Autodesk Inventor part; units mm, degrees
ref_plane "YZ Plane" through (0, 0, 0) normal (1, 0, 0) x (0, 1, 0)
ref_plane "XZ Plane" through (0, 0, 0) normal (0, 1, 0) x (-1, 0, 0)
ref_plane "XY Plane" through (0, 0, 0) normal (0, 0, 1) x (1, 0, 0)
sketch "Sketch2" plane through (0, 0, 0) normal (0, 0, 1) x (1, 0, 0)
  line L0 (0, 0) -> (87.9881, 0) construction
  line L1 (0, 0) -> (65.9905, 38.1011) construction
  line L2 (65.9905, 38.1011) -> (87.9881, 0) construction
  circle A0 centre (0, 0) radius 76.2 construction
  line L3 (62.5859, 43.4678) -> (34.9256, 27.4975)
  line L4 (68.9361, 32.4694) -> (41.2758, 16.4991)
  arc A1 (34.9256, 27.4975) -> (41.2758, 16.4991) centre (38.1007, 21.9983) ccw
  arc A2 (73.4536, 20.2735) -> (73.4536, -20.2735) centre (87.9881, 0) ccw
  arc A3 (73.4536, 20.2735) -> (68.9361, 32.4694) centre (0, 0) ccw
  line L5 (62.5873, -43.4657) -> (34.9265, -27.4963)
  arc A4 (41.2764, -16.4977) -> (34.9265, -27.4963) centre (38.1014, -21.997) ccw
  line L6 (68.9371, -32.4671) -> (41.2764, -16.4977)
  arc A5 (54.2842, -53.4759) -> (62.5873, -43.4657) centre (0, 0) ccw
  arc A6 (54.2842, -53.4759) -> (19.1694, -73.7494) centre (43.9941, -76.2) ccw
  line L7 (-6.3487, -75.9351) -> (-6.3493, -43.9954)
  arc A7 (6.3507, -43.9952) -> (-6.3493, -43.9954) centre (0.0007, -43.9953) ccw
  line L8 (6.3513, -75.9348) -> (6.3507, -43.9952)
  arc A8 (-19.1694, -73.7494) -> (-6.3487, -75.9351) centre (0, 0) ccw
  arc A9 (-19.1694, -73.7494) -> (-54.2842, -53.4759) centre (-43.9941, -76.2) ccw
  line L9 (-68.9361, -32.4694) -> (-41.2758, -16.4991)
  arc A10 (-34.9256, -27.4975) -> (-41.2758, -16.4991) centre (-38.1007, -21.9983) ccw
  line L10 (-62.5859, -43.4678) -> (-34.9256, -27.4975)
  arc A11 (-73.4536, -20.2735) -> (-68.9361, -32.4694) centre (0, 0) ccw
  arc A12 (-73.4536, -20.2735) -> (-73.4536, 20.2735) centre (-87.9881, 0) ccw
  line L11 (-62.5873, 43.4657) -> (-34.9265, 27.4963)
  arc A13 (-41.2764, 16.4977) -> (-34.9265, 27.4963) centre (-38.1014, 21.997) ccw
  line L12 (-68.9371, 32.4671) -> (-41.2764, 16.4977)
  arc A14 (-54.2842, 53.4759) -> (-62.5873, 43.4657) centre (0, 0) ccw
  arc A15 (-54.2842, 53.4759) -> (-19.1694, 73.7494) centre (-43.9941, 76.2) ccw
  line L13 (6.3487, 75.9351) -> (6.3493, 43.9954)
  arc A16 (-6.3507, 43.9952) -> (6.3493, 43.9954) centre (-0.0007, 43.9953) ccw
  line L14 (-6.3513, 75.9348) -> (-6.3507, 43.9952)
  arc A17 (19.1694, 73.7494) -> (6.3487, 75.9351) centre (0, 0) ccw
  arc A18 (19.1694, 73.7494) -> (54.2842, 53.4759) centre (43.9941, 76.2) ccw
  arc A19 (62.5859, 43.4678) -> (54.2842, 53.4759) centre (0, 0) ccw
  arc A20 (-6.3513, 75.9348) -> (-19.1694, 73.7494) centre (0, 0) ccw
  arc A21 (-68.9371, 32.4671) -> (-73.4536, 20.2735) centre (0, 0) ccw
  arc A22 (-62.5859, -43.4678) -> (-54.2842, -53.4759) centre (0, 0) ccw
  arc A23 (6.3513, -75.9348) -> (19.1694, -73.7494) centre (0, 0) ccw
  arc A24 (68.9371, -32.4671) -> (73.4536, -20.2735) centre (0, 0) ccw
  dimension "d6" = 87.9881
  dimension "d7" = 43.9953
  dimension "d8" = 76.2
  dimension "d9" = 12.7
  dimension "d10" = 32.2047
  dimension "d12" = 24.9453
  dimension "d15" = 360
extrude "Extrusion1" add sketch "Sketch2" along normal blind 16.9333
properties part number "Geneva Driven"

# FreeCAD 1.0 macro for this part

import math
import FreeCAD as App
import Part
import Sketcher
from FreeCAD import Vector
Q = App.Units.Quantity

doc = App.newDocument("Part")
body = doc.addObject("PartDesign::Body", "Body")

sketch1 = body.newObject("Sketcher::SketchObject", "Sketch")
sketch1.AttachmentSupport = (doc.getObject("XY_Plane"), [""])
sketch1.MapMode = "FlatFace"
sketch1.addGeometry(Part.LineSegment(Vector(34.9256, 27.4975, 0), Vector(62.5859, 43.4678, 0)), False)
sketch1.addGeometry(Part.ArcOfCircle(Part.Circle(Vector(-0.001244, -0.000945, 0), Vector(0, 0, 1), 76.20159), math.radians(34.781198), math.radians(44.570087)), False)
sketch1.addGeometry(Part.ArcOfCircle(Part.Circle(Vector(43.9941, 76.2, 0), Vector(0, 0, 1), 24.945364), math.radians(-174.362244), math.radians(-65.637669)), False)
sketch1.addGeometry(Part.ArcOfCircle(Part.Circle(Vector(-0.001041, -0.004847, 0), Vector(0, 0, 1), 76.204952), math.radians(75.429905), math.radians(85.220315)), False)
sketch1.addGeometry(Part.LineSegment(Vector(6.3487, 75.9351, 0), Vector(6.3493, 43.9954, 0)), False)
sketch1.addGeometry(Part.ArcOfCircle(Part.Circle(Vector(-0.0007, 43.9953, 0), Vector(0, 0, 1), 6.35), math.radians(-179.999098), math.radians(0.000902)), False)
sketch1.addGeometry(Part.LineSegment(Vector(-6.3507, 43.9952, 0), Vector(-6.3513, 75.9348, 0)), False)
sketch1.addGeometry(Part.ArcOfCircle(Part.Circle(Vector(0.000797, -0.006284, 0), Vector(0, 0, 1), 76.206282), math.radians(94.781379), math.radians(104.569646)), False)
sketch1.addGeometry(Part.ArcOfCircle(Part.Circle(Vector(-43.9941, 76.2, 0), Vector(0, 0, 1), 24.945358), math.radians(-114.362331), math.radians(-5.637756)), False)
sketch1.addGeometry(Part.ArcOfCircle(Part.Circle(Vector(-0.006044, 0.005465, 0), Vector(0, 0, 1), 76.1919), math.radians(135.429501), math.radians(145.221533)), False)
sketch1.addGeometry(Part.LineSegment(Vector(-62.5873, 43.4657, 0), Vector(-34.9265, 27.4963, 0)), False)
sketch1.addGeometry(Part.ArcOfCircle(Part.Circle(Vector(-38.1014, 21.997, 0), Vector(0, 0, 1), 6.350034), math.radians(-119.999825), math.radians(60.000956)), False)
sketch1.addGeometry(Part.LineSegment(Vector(-41.2764, 16.4977, 0), Vector(-68.9371, 32.4671, 0)), False)
sketch1.addGeometry(Part.ArcOfCircle(Part.Circle(Vector(0.008152, -0.003422, 0), Vector(0, 0, 1), 76.208809), math.radians(154.781395), math.radians(164.569423)), False)
sketch1.addGeometry(Part.ArcOfCircle(Part.Circle(Vector(-87.9881, 0, 0), Vector(0, 0, 1), 24.94527), math.radians(-54.362462), math.radians(54.362462)), False)
sketch1.addGeometry(Part.ArcOfCircle(Part.Circle(Vector(0.001426, 0.00046, 0), Vector(0, 0, 1), 76.201537), math.radians(-164.570225), math.radians(-154.77937)), False)
sketch1.addGeometry(Part.LineSegment(Vector(-68.9361, -32.4694, 0), Vector(-41.2758, -16.4991, 0)), False)
sketch1.addGeometry(Part.ArcOfCircle(Part.Circle(Vector(-38.1007, -21.9983, 0), Vector(0, 0, 1), 6.349997), math.radians(-59.998942), math.radians(120.001058)), False)
sketch1.addGeometry(Part.LineSegment(Vector(-34.9256, -27.4975, 0), Vector(-62.5859, -43.4678, 0)), False)
sketch1.addGeometry(Part.ArcOfCircle(Part.Circle(Vector(0.001244, 0.000945, 0), Vector(0, 0, 1), 76.20159), math.radians(-145.218802), math.radians(-135.429913)), False)
sketch1.addGeometry(Part.ArcOfCircle(Part.Circle(Vector(-43.9941, -76.2, 0), Vector(0, 0, 1), 24.945364), math.radians(5.637756), math.radians(114.362331)), False)
sketch1.addGeometry(Part.ArcOfCircle(Part.Circle(Vector(0.001041, 0.004847, 0), Vector(0, 0, 1), 76.204952), math.radians(-104.570095), math.radians(-94.779685)), False)
sketch1.addGeometry(Part.LineSegment(Vector(-6.3487, -75.9351, 0), Vector(-6.3493, -43.9954, 0)), False)
sketch1.addGeometry(Part.ArcOfCircle(Part.Circle(Vector(0.0007, -43.9953, 0), Vector(0, 0, 1), 6.35), math.radians(0.000902), math.radians(180.000902)), False)
sketch1.addGeometry(Part.LineSegment(Vector(6.3507, -43.9952, 0), Vector(6.3513, -75.9348, 0)), False)
sketch1.addGeometry(Part.ArcOfCircle(Part.Circle(Vector(-0.000797, 0.006284, 0), Vector(0, 0, 1), 76.206282), math.radians(-85.218621), math.radians(-75.430354)), False)
sketch1.addGeometry(Part.ArcOfCircle(Part.Circle(Vector(43.9941, -76.2, 0), Vector(0, 0, 1), 24.945358), math.radians(65.637669), math.radians(174.362244)), False)
sketch1.addGeometry(Part.ArcOfCircle(Part.Circle(Vector(0.006044, -0.005465, 0), Vector(0, 0, 1), 76.1919), math.radians(-44.570499), math.radians(-34.778467)), False)
sketch1.addGeometry(Part.LineSegment(Vector(62.5873, -43.4657, 0), Vector(34.9265, -27.4963, 0)), False)
sketch1.addGeometry(Part.ArcOfCircle(Part.Circle(Vector(38.1014, -21.997, 0), Vector(0, 0, 1), 6.350034), math.radians(60.000175), math.radians(240.000956)), False)
sketch1.addGeometry(Part.LineSegment(Vector(41.2764, -16.4977, 0), Vector(68.9371, -32.4671, 0)), False)
sketch1.addGeometry(Part.ArcOfCircle(Part.Circle(Vector(-0.008152, 0.003422, 0), Vector(0, 0, 1), 76.208809), math.radians(-25.218605), math.radians(-15.430577)), False)
sketch1.addGeometry(Part.ArcOfCircle(Part.Circle(Vector(87.9881, 0, 0), Vector(0, 0, 1), 24.94527), math.radians(125.637538), math.radians(234.362462)), False)
sketch1.addGeometry(Part.ArcOfCircle(Part.Circle(Vector(-0.001426, -0.00046, 0), Vector(0, 0, 1), 76.201537), math.radians(15.429775), math.radians(25.22063)), False)
sketch1.addGeometry(Part.LineSegment(Vector(68.9361, 32.4694, 0), Vector(41.2758, 16.4991, 0)), False)
sketch1.addGeometry(Part.ArcOfCircle(Part.Circle(Vector(38.1007, 21.9983, 0), Vector(0, 0, 1), 6.349997), math.radians(120.001058), math.radians(300.001058)), False)
sketch1.addConstraint(Sketcher.Constraint("Coincident", 0, 2, 1, 1))
sketch1.addConstraint(Sketcher.Constraint("Coincident", 1, 2, 2, 2))
sketch1.addConstraint(Sketcher.Constraint("Coincident", 2, 1, 3, 1))
sketch1.addConstraint(Sketcher.Constraint("Coincident", 3, 2, 4, 1))
sketch1.addConstraint(Sketcher.Constraint("Coincident", 4, 2, 5, 2))
sketch1.addConstraint(Sketcher.Constraint("Coincident", 5, 1, 6, 1))
sketch1.addConstraint(Sketcher.Constraint("Coincident", 6, 2, 7, 1))
sketch1.addConstraint(Sketcher.Constraint("Coincident", 7, 2, 8, 2))
sketch1.addConstraint(Sketcher.Constraint("Coincident", 8, 1, 9, 1))
sketch1.addConstraint(Sketcher.Constraint("Coincident", 9, 2, 10, 1))
sketch1.addConstraint(Sketcher.Constraint("Coincident", 10, 2, 11, 2))
sketch1.addConstraint(Sketcher.Constraint("Coincident", 11, 1, 12, 1))
sketch1.addConstraint(Sketcher.Constraint("Coincident", 12, 2, 13, 1))
sketch1.addConstraint(Sketcher.Constraint("Coincident", 13, 2, 14, 2))
sketch1.addConstraint(Sketcher.Constraint("Coincident", 14, 1, 15, 1))
sketch1.addConstraint(Sketcher.Constraint("Coincident", 15, 2, 16, 1))
sketch1.addConstraint(Sketcher.Constraint("Coincident", 16, 2, 17, 2))
sketch1.addConstraint(Sketcher.Constraint("Coincident", 17, 1, 18, 1))
sketch1.addConstraint(Sketcher.Constraint("Coincident", 18, 2, 19, 1))
sketch1.addConstraint(Sketcher.Constraint("Coincident", 19, 2, 20, 2))
sketch1.addConstraint(Sketcher.Constraint("Coincident", 20, 1, 21, 1))
sketch1.addConstraint(Sketcher.Constraint("Coincident", 21, 2, 22, 1))
sketch1.addConstraint(Sketcher.Constraint("Coincident", 22, 2, 23, 2))
sketch1.addConstraint(Sketcher.Constraint("Coincident", 23, 1, 24, 1))
sketch1.addConstraint(Sketcher.Constraint("Coincident", 24, 2, 25, 1))
sketch1.addConstraint(Sketcher.Constraint("Coincident", 25, 2, 26, 2))
sketch1.addConstraint(Sketcher.Constraint("Coincident", 26, 1, 27, 1))
sketch1.addConstraint(Sketcher.Constraint("Coincident", 27, 2, 28, 1))
sketch1.addConstraint(Sketcher.Constraint("Coincident", 28, 2, 29, 2))
sketch1.addConstraint(Sketcher.Constraint("Coincident", 29, 1, 30, 1))
sketch1.addConstraint(Sketcher.Constraint("Coincident", 30, 2, 31, 1))
sketch1.addConstraint(Sketcher.Constraint("Coincident", 31, 2, 32, 2))
sketch1.addConstraint(Sketcher.Constraint("Coincident", 32, 1, 33, 1))
sketch1.addConstraint(Sketcher.Constraint("Coincident", 33, 2, 34, 1))
sketch1.addConstraint(Sketcher.Constraint("Coincident", 34, 2, 35, 2))
sketch1.addConstraint(Sketcher.Constraint("Coincident", 35, 1, 0, 1))
sketch1.addConstraint(Sketcher.Constraint("PointOnObject", 14, 3, -1))
sketch1.addConstraint(Sketcher.Constraint("PointOnObject", 32, 3, -1))
sketch1.addConstraint(Sketcher.Constraint("Radius", 5, Q("0.25 in")))
sketch1.addConstraint(Sketcher.Constraint("Radius", 11, Q("0.25 in")))
sketch1.addConstraint(Sketcher.Constraint("Radius", 17, Q("0.25 in")))
sketch1.addConstraint(Sketcher.Constraint("Radius", 23, Q("0.25 in")))
sketch1.addConstraint(Sketcher.Constraint("Radius", 29, Q("0.25 in")))
sketch1.addConstraint(Sketcher.Constraint("Radius", 35, Q("0.25 in")))
sketch1.addConstraint(Sketcher.Constraint("DistanceY", -1, 1, 2, 3, Q("3 in")))
sketch1.addConstraint(Sketcher.Constraint("DistanceY", -1, 1, 8, 3, Q("3 in")))
sketch1.addConstraint(Sketcher.Constraint("DistanceY", 20, 3, -1, 1, Q("3 in")))
sketch1.addConstraint(Sketcher.Constraint("DistanceY", 26, 3, -1, 1, Q("3 in")))
sketch1.addConstraint(Sketcher.Constraint("Radius", 2, Q("0.9821 in")))
sketch1.addConstraint(Sketcher.Constraint("Radius", 8, Q("0.9821 in")))
sketch1.addConstraint(Sketcher.Constraint("Radius", 14, Q("0.9821 in")))
sketch1.addConstraint(Sketcher.Constraint("Radius", 20, Q("0.9821 in")))
sketch1.addConstraint(Sketcher.Constraint("Radius", 26, Q("0.9821 in")))
sketch1.addConstraint(Sketcher.Constraint("Radius", 32, Q("0.9821 in")))
sketch1.addConstraint(Sketcher.Constraint("DistanceX", 6, 2, 3, 2, Q("0.5 in")))
sketch1.addConstraint(Sketcher.Constraint("DistanceX", 21, 2, 24, 2, Q("0.5 in")))
sketch1.addConstraint(Sketcher.Constraint("DistanceX", 1, 3, 3, 3, Q("0 in")))
sketch1.addConstraint(Sketcher.Constraint("DistanceX", 19, 3, 15, 3, Q("0 in")))
sketch1.addConstraint(Sketcher.Constraint("DistanceX", 21, 3, 19, 3, Q("0 in")))
sketch1.addConstraint(Sketcher.Constraint("DistanceX", 33, 3, 1, 3, Q("0 in")))
sketch1.addConstraint(Sketcher.Constraint("DistanceY", 5, 1, 5, 3, Q("0 in")))
sketch1.addConstraint(Sketcher.Constraint("DistanceY", 5, 1, 4, 2, Q("0 in")))
sketch1.addConstraint(Sketcher.Constraint("DistanceY", 6, 2, 3, 2, Q("0 in")))
sketch1.addConstraint(Sketcher.Constraint("DistanceY", 23, 3, 23, 1, Q("0 in")))
sketch1.addConstraint(Sketcher.Constraint("DistanceY", 22, 2, 23, 1, Q("0 in")))
sketch1.addConstraint(Sketcher.Constraint("DistanceY", 21, 2, 24, 2, Q("0 in")))
sketch1.addConstraint(Sketcher.Constraint("DistanceY", -1, 1, 5, 3, Q("1.7321 in")))
sketch1.addConstraint(Sketcher.Constraint("DistanceX", 14, 3, -1, 1, Q("3.4641 in")))
sketch1.addConstraint(Sketcher.Constraint("DistanceY", 23, 3, -1, 1, Q("1.7321 in")))
sketch1.addConstraint(Sketcher.Constraint("DistanceX", -1, 1, 32, 3, Q("3.4641 in")))
sketch1.addConstraint(Sketcher.Constraint("Radius", 3, Q("3.0002 in")))
sketch1.addConstraint(Sketcher.Constraint("Radius", 21, Q("3.0002 in")))
sketch1.addConstraint(Sketcher.Constraint("DistanceX", 1, 3, 2, 3, Q("1.7321 in")))
sketch1.addConstraint(Sketcher.Constraint("DistanceX", 8, 3, 2, 3, Q("3.4641 in")))
sketch1.addConstraint(Sketcher.Constraint("DistanceX", 11, 3, 1, 3, Q("1.5 in")))
sketch1.addConstraint(Sketcher.Constraint("DistanceY", 17, 3, 11, 3, Q("1.7321 in")))
sketch1.addConstraint(Sketcher.Constraint("DistanceX", 3, 3, 26, 3, Q("1.7321 in")))
sketch1.addConstraint(Sketcher.Constraint("DistanceX", 15, 3, 29, 3, Q("1.5 in")))
sketch1.addConstraint(Sketcher.Constraint("Radius", 1, Q("76.2016 mm")))
sketch1.addConstraint(Sketcher.Constraint("Radius", 7, Q("76.2063 mm")))
sketch1.addConstraint(Sketcher.Constraint("Radius", 9, Q("76.192 mm")))
sketch1.addConstraint(Sketcher.Constraint("Radius", 13, Q("76.2088 mm")))
sketch1.addConstraint(Sketcher.Constraint("Radius", 15, Q("76.2015 mm")))
sketch1.addConstraint(Sketcher.Constraint("Radius", 19, Q("76.2016 mm")))
sketch1.addConstraint(Sketcher.Constraint("Radius", 25, Q("76.2063 mm")))
sketch1.addConstraint(Sketcher.Constraint("Radius", 27, Q("76.192 mm")))
sketch1.addConstraint(Sketcher.Constraint("Radius", 31, Q("76.2088 mm")))
sketch1.addConstraint(Sketcher.Constraint("Radius", 33, Q("76.2015 mm")))
sketch1.addConstraint(Sketcher.Constraint("DistanceX", 5, 3, 2, 3, Q("43.9948 mm")))
sketch1.addConstraint(Sketcher.Constraint("DistanceX", 8, 3, 7, 3, Q("43.995 mm")))
sketch1.addConstraint(Sketcher.Constraint("DistanceX", 20, 3, 7, 3, Q("43.995 mm")))
sketch1.addConstraint(Sketcher.Constraint("DistanceY", 26, 3, 15, 3, Q("76.2005 mm")))
sketch1.addConstraint(Sketcher.Constraint("DistanceX", 25, 3, 4, 2, Q("0.25 in")))
sketch1.addConstraint(Sketcher.Constraint("DistanceX", 5, 1, 3, 2, Q("12.6994 mm")))
sketch1.addConstraint(Sketcher.Constraint("DistanceX", 11, 1, 10, 2, Q("0.25 in")))
sketch1.addConstraint(Sketcher.Constraint("DistanceX", 12, 2, 9, 2, Q("0.25 in")))
sketch1.addConstraint(Sketcher.Constraint("DistanceX", 16, 2, 17, 1, Q("0.25 in")))
sketch1.addConstraint(Sketcher.Constraint("DistanceX", 15, 2, 18, 2, Q("0.25 in")))
sketch1.addConstraint(Sketcher.Constraint("DistanceX", 21, 2, 23, 1, Q("12.6994 mm")))
sketch1.addConstraint(Sketcher.Constraint("DistanceX", 28, 2, 29, 1, Q("0.25 in")))
sketch1.addConstraint(Sketcher.Constraint("DistanceX", 27, 2, 30, 2, Q("0.25 in")))
sketch1.addConstraint(Sketcher.Constraint("DistanceX", 0, 2, 33, 2, Q("0.25 in")))
sketch1.addConstraint(Sketcher.Constraint("DistanceX", 35, 1, 34, 2, Q("0.25 in")))
sketch1.addConstraint(Sketcher.Constraint("DistanceX", -1, 1, 0, 2, Q("2.464 in")))
sketch1.addConstraint(Sketcher.Constraint("DistanceX", 18, 2, -1, 1, Q("2.464 in")))
sketch1.addConstraint(Sketcher.Constraint("DistanceX", 15, 3, 26, 3, Q("1.732 in")))
sketch1.addConstraint(Sketcher.Constraint("DistanceX", 9, 2, 11, 3, Q("0.964 in")))
sketch1.addConstraint(Sketcher.Constraint("DistanceX", 11, 3, 10, 2, Q("0.125 in")))
sketch1.addConstraint(Sketcher.Constraint("DistanceX", 15, 2, 17, 3, Q("1.214 in")))
sketch1.addConstraint(Sketcher.Constraint("DistanceX", 16, 2, 17, 3, Q("0.125 in")))
sketch1.addConstraint(Sketcher.Constraint("DistanceY", 18, 2, 15, 2, Q("0.433 in")))
sketch1.addConstraint(Sketcher.Constraint("DistanceX", 21, 2, 26, 3, Q("1.982 in")))
sketch1.addConstraint(Sketcher.Constraint("DistanceX", 29, 3, 27, 2, Q("0.964 in")))
sketch1.addConstraint(Sketcher.Constraint("DistanceX", 28, 2, 29, 3, Q("0.125 in")))
sketch1.addConstraint(Sketcher.Constraint("DistanceY", 33, 2, 0, 2, Q("0.433 in")))
sketch1.addConstraint(Sketcher.Constraint("DistanceX", 35, 3, 33, 2, Q("1.214 in")))
sketch1.addConstraint(Sketcher.Constraint("DistanceX", 35, 3, 34, 2, Q("0.125 in")))
sketch1.addConstraint(Sketcher.Constraint("DistanceY", 3, 3, -1, 1, Q("0.0002 in")))
sketch1.addConstraint(Sketcher.Constraint("DistanceY", -1, 1, 21, 3, Q("0.0002 in")))
sketch1.addConstraint(Sketcher.Constraint("DistanceX", -1, 1, 2, 1, Q("0.7547 in")))
sketch1.addConstraint(Sketcher.Constraint("DistanceY", 7, 3, 1, 3, Q("0.0002 in")))
sketch1.addConstraint(Sketcher.Constraint("DistanceX", 9, 3, 1, 3, Q("0.0002 in")))
sketch1.addConstraint(Sketcher.Constraint("DistanceY", 3, 3, 9, 3, Q("0.0004 in")))
sketch1.addConstraint(Sketcher.Constraint("DistanceY", 9, 3, 11, 3, Q("0.8658 in")))
sketch1.addConstraint(Sketcher.Constraint("DistanceX", 7, 3, 13, 3, Q("0.0003 in")))
sketch1.addConstraint(Sketcher.Constraint("DistanceY", 13, 3, 1, 3, Q("0.0001 in")))
sketch1.addConstraint(Sketcher.Constraint("DistanceX", 7, 3, 27, 3, Q("0.0002 in")))
sketch1.addConstraint(Sketcher.Constraint("DistanceY", 29, 3, 13, 3, Q("0.8659 in")))
sketch1.addConstraint(Sketcher.Constraint("DistanceY", 29, 3, 27, 3, Q("0.8658 in")))
sketch1.addConstraint(Sketcher.Constraint("DistanceX", 31, 3, 25, 3, Q("0.0003 in")))
sketch1.addConstraint(Sketcher.Constraint("DistanceY", 19, 3, 31, 3, Q("0.0001 in")))
sketch1.addConstraint(Sketcher.Constraint("DistanceY", 13, 3, 35, 3, Q("0.8662 in")))
pad1 = body.newObject("PartDesign::Pad", "Pad")
pad1.Profile = sketch1
pad1.Length = 16.9333

doc.recompute()
